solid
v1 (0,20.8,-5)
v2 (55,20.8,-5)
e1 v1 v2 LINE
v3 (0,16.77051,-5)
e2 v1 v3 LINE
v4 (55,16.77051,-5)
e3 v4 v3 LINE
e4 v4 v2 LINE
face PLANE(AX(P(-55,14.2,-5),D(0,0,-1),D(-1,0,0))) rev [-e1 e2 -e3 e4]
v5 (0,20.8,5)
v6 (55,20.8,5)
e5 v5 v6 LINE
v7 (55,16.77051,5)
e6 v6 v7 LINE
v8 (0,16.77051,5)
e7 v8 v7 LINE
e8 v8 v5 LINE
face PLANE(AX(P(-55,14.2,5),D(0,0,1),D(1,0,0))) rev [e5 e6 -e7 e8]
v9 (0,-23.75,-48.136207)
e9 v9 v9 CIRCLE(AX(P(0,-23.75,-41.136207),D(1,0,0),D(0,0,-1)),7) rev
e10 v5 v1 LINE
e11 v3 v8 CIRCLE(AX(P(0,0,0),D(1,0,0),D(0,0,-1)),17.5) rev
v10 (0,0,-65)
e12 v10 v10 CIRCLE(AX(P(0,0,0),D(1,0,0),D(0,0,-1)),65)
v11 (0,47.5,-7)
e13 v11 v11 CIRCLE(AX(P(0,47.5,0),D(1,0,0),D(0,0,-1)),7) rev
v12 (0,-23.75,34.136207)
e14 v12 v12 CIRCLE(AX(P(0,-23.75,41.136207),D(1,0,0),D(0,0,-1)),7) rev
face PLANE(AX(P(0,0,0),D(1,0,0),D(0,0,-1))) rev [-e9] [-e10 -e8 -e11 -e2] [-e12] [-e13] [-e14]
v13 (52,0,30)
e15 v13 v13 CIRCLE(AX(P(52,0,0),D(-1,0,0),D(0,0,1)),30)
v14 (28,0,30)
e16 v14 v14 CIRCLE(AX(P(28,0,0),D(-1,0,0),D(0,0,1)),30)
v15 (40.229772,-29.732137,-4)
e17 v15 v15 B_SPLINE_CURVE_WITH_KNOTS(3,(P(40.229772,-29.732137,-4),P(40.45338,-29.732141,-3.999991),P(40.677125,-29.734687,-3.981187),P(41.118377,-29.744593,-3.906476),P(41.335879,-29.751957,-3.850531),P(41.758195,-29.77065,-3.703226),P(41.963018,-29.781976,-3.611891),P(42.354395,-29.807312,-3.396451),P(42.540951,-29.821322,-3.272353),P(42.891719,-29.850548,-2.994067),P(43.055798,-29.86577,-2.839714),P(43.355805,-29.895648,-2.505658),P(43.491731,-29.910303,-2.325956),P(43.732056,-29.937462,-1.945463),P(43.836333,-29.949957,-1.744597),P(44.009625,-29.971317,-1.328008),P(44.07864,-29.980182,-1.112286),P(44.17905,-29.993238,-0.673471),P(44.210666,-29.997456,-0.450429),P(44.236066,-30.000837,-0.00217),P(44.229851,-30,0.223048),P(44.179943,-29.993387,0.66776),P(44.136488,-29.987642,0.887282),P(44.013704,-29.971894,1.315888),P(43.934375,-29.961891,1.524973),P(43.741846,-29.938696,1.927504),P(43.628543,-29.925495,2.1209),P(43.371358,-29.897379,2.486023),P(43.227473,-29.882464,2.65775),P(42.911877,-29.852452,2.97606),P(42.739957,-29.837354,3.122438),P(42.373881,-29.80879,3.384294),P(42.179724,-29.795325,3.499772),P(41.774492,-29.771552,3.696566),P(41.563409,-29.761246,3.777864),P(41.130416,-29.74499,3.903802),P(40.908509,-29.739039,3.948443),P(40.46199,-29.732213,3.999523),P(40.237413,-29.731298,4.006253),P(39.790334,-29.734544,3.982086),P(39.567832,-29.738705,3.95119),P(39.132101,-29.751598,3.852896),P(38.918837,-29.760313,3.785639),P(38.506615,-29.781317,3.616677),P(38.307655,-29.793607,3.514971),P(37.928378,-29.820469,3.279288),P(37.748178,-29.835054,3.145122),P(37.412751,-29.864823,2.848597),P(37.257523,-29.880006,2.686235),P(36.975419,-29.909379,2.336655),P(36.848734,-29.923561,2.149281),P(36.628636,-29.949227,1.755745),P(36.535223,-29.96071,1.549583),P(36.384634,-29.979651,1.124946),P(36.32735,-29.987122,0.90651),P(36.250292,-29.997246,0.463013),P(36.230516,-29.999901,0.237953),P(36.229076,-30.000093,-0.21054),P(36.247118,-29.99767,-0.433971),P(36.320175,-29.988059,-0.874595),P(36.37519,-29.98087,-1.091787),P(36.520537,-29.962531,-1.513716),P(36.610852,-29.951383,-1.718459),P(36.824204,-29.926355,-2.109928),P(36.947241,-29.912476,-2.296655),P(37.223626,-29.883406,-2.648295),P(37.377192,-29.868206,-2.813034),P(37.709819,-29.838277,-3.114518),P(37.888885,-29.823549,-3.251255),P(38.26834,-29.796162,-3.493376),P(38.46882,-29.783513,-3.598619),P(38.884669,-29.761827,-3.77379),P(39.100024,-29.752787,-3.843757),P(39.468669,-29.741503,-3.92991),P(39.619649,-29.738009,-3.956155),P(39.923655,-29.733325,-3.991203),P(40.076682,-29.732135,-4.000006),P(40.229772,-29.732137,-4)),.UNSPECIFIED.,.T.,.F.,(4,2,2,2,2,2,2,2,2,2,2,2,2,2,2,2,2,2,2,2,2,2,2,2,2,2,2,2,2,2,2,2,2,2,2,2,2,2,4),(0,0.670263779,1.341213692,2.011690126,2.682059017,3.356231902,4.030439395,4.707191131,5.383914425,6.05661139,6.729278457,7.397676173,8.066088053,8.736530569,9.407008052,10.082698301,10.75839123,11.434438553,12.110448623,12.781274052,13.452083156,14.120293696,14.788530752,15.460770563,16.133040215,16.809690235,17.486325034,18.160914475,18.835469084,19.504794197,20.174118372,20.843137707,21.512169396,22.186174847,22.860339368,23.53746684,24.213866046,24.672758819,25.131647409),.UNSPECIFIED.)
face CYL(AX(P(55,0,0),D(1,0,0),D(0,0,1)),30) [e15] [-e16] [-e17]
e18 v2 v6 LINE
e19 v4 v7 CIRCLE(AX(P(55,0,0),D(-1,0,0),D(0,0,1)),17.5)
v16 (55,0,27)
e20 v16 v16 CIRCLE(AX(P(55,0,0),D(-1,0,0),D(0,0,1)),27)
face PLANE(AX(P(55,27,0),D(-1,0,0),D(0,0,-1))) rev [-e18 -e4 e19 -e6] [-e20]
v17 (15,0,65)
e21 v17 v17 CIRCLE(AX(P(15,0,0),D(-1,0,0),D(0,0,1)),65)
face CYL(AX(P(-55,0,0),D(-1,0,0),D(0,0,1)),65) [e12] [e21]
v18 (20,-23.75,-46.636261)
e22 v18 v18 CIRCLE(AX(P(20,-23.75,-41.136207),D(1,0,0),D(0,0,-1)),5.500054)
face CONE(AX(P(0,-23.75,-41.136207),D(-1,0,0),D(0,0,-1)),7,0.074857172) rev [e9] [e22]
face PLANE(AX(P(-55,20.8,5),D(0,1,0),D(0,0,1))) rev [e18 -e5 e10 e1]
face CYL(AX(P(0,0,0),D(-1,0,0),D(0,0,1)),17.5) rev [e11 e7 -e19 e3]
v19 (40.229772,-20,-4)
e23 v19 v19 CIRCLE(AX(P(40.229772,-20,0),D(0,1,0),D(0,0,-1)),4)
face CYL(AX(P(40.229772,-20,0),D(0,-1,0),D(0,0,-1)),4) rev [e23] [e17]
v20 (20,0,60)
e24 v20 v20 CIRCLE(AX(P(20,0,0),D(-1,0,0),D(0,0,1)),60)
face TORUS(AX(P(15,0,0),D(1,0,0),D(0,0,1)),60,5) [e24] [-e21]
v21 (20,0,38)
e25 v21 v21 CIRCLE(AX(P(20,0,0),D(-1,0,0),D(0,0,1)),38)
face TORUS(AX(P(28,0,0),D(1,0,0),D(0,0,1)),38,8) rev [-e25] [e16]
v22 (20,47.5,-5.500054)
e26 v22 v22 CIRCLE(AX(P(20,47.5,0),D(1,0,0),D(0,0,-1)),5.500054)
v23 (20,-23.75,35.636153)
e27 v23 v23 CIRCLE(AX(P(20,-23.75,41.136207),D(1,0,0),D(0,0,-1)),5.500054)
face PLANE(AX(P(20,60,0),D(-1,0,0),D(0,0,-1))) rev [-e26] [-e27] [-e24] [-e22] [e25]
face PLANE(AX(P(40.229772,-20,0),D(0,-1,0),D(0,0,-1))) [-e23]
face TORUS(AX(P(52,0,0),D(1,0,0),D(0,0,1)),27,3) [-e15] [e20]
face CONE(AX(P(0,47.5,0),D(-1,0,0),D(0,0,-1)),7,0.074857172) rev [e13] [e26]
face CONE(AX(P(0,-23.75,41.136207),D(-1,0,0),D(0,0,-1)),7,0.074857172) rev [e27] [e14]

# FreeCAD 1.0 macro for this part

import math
import FreeCAD as App
import Part
import Sketcher

V = App.Vector
Q = App.Units.Quantity

doc = App.newDocument("Part")
body = doc.addObject("PartDesign::Body", "Body")

# Sketch on XY plane
sketch1 = body.newObject("Sketcher::SketchObject", "Sketch")
sketch1.AttachmentSupport = (doc.getObject("XY_Plane"), [""])
sketch1.MapMode = "FlatFace"
sketch1.addGeometry(Part.LineSegment(V(-55, 0, 0), V(0, 0, 0)), False)
sketch1.addGeometry(Part.LineSegment(V(0, 0, 0), V(0, 65, 0)), False)
sketch1.addGeometry(Part.LineSegment(V(0, 65, 0), V(-15, 65, 0)), False)
sketch1.addGeometry(Part.ArcOfCircle(Part.Circle(V(-15, 60, 0), V(0, 0, 1), 5), math.radians(90), math.radians(180)), False)
sketch1.addGeometry(Part.LineSegment(V(-20, 60, 0), V(-20, 38, 0)), False)
sketch1.addGeometry(Part.ArcOfCircle(Part.Circle(V(-28, 38, 0), V(0, 0, 1), 8), math.radians(-90), math.radians(0)), False)
sketch1.addGeometry(Part.LineSegment(V(-28, 30, 0), V(-52, 30, 0)), False)
sketch1.addGeometry(Part.ArcOfCircle(Part.Circle(V(-52, 27, 0), V(0, 0, 1), 3), math.radians(90), math.radians(180)), False)
sketch1.addGeometry(Part.LineSegment(V(-55, 27, 0), V(-55, 0, 0)), False)
sketch1.addConstraint(Sketcher.Constraint("Coincident", 0, 2, 1, 1))
sketch1.addConstraint(Sketcher.Constraint("Coincident", 1, 2, 2, 1))
sketch1.addConstraint(Sketcher.Constraint("Tangent", 2, 2, 3, 1))
sketch1.addConstraint(Sketcher.Constraint("Tangent", 3, 2, 4, 1))
sketch1.addConstraint(Sketcher.Constraint("Tangent", 4, 2, 5, 2))
sketch1.addConstraint(Sketcher.Constraint("Tangent", 5, 1, 6, 1))
sketch1.addConstraint(Sketcher.Constraint("Tangent", 6, 2, 7, 1))
sketch1.addConstraint(Sketcher.Constraint("Tangent", 7, 2, 8, 1))
sketch1.addConstraint(Sketcher.Constraint("Coincident", 8, 2, 0, 1))
sketch1.addConstraint(Sketcher.Constraint("Horizontal", 0))
sketch1.addConstraint(Sketcher.Constraint("Vertical", 1))
sketch1.addConstraint(Sketcher.Constraint("Horizontal", 2))
sketch1.addConstraint(Sketcher.Constraint("Vertical", 4))
sketch1.addConstraint(Sketcher.Constraint("Horizontal", 6))
sketch1.addConstraint(Sketcher.Constraint("Vertical", 8))
sketch1.addConstraint(Sketcher.Constraint("Coincident", 0, 2, -1, 1))
sketch1.addConstraint(Sketcher.Constraint("Radius", 3, Q("5 mm")))
sketch1.addConstraint(Sketcher.Constraint("Radius", 5, Q("8 mm")))
sketch1.addConstraint(Sketcher.Constraint("Radius", 7, Q("3 mm")))
sketch1.addConstraint(Sketcher.Constraint("DistanceX", 0, 1, 0, 2, Q("55 mm")))
sketch1.addConstraint(Sketcher.Constraint("DistanceX", 2, 2, 2, 1, Q("15 mm")))
sketch1.addConstraint(Sketcher.Constraint("DistanceY", 1, 1, 1, 2, Q("65 mm")))
sketch1.addConstraint(Sketcher.Constraint("DistanceY", 4, 2, 4, 1, Q("22 mm")))
revolution = body.newObject("PartDesign::Revolution", "Revolution")
revolution.Profile = sketch1
revolution.ReferenceAxis = (sketch1, ["H_Axis"])
revolution.Angle = 360

# Sketch on YZ plane
sketch2 = body.newObject("Sketcher::SketchObject", "Sketch001")
sketch2.AttachmentSupport = (doc.getObject("YZ_Plane"), [""])
sketch2.MapMode = "FlatFace"
sketch2.AttachmentOffset = App.Placement(V(0, 0, -55), App.Rotation())
sketch2.addGeometry(Part.Circle(V(0, 0, 0), V(0, 0, 1), 18), False)
sketch2.addConstraint(Sketcher.Constraint("Coincident", 0, 3, -1, 1))
sketch2.addConstraint(Sketcher.Constraint("Diameter", 0, Q("35 mm")))
pocket1 = body.newObject("PartDesign::Pocket", "Pocket")
pocket1.Profile = sketch2
pocket1.Type = "ThroughAll"
pocket1.Reversed = True

# Sketch on YZ plane
sketch3 = body.newObject("Sketcher::SketchObject", "Sketch002")
sketch3.AttachmentSupport = (doc.getObject("YZ_Plane"), [""])
sketch3.MapMode = "FlatFace"
sketch3.addGeometry(Part.LineSegment(V(21, 5, 0), V(14, 5, 0)), False)
sketch3.addGeometry(Part.LineSegment(V(14, 5, 0), V(14, -5, 0)), False)
sketch3.addGeometry(Part.LineSegment(V(14, -5, 0), V(21, -5, 0)), False)
sketch3.addGeometry(Part.LineSegment(V(21, -5, 0), V(21, 5, 0)), False)
sketch3.addConstraint(Sketcher.Constraint("Coincident", 0, 2, 1, 1))
sketch3.addConstraint(Sketcher.Constraint("Coincident", 1, 2, 2, 1))
sketch3.addConstraint(Sketcher.Constraint("Coincident", 2, 2, 3, 1))
sketch3.addConstraint(Sketcher.Constraint("Coincident", 3, 2, 0, 1))
sketch3.addConstraint(Sketcher.Constraint("Horizontal", 0))
sketch3.addConstraint(Sketcher.Constraint("Vertical", 1))
sketch3.addConstraint(Sketcher.Constraint("Horizontal", 2))
sketch3.addConstraint(Sketcher.Constraint("Vertical", 3))
sketch3.addConstraint(Sketcher.Constraint("DistanceY", 1, 2, 1, 1, Q("10 mm")))
sketch3.addConstraint(Sketcher.Constraint("DistanceX", 0, 2, 0, 1, Q("6.6 mm")))
sketch3.addConstraint(Sketcher.Constraint("DistanceY", -1, 1, 0, 2, Q("5 mm")))
sketch3.addConstraint(Sketcher.Constraint("DistanceX", -1, 1, 0, 2, Q("14.2 mm")))
pocket2 = body.newObject("PartDesign::Pocket", "Pocket001")
pocket2.Profile = sketch3
pocket2.Type = "ThroughAll"

# Sketch on XZ plane
sketch4 = body.newObject("Sketcher::SketchObject", "Sketch003")
sketch4.AttachmentSupport = (doc.getObject("XZ_Plane"), [""])
sketch4.MapMode = "FlatFace"
sketch4.AttachmentOffset = App.Placement(V(0, 0, 30), App.Rotation())
sketch4.addGeometry(Part.Circle(V(-40.2, 0, 0), V(0, 0, 1), 4), False)
sketch4.addConstraint(Sketcher.Constraint("PointOnObject", 0, 3, -1))
sketch4.addConstraint(Sketcher.Constraint("Diameter", 0, Q("8 mm")))
sketch4.addConstraint(Sketcher.Constraint("DistanceX", 0, 3, -1, 1, Q("40.229772 mm")))
pocket3 = body.newObject("PartDesign::Pocket", "Pocket002")
pocket3.Profile = sketch4
pocket3.Length = 10

# Sketch on XZ plane
sketch5 = body.newObject("Sketcher::SketchObject", "Sketch004")
sketch5.AttachmentSupport = (doc.getObject("XZ_Plane"), [""])
sketch5.MapMode = "FlatFace"
sketch5.AttachmentOffset = App.Placement(V(0, 0, -47.5), App.Rotation())
sketch5.addGeometry(Part.LineSegment(V(0, 0, 0), V(0, -7, 0)), False)
sketch5.addGeometry(Part.LineSegment(V(0, -7, 0), V(-93, 0, 0)), False)
sketch5.addGeometry(Part.LineSegment(V(-93, 0, 0), V(0, 0, 0)), False)
sketch5.addConstraint(Sketcher.Constraint("Coincident", 0, 2, 1, 1))
sketch5.addConstraint(Sketcher.Constraint("Coincident", 1, 2, 2, 1))
sketch5.addConstraint(Sketcher.Constraint("Coincident", 2, 2, 0, 1))
sketch5.addConstraint(Sketcher.Constraint("Vertical", 0))
sketch5.addConstraint(Sketcher.Constraint("Horizontal", 2))
sketch5.addConstraint(Sketcher.Constraint("Coincident", 2, 2, -1, 1))
sketch5.addConstraint(Sketcher.Constraint("DistanceY", 0, 2, 0, 1, Q("7 mm")))
sketch5.addConstraint(Sketcher.Constraint("DistanceX", 2, 1, 2, 2, Q("93.336682 mm")))
groove = body.newObject("PartDesign::Groove", "Groove")
groove.Profile = sketch5
groove.ReferenceAxis = (sketch5, ["H_Axis"])
groove.Angle = 360

# Sketch on XZ plane
sketch6 = body.newObject("Sketcher::SketchObject", "Sketch005")
sketch6.AttachmentSupport = (doc.getObject("XZ_Plane"), [""])
sketch6.MapMode = "FlatFace"
sketch6.AttachmentOffset = App.Placement(V(0, 0, 23.75), App.Rotation())
sketch6.addGeometry(Part.LineSegment(V(0, -41, 0), V(0, -48, 0)), False)
sketch6.addGeometry(Part.LineSegment(V(0, -48, 0), V(-93, -41, 0)), False)
sketch6.addGeometry(Part.LineSegment(V(-93, -41, 0), V(0, -41, 0)), False)
sketch6.addGeometry(Part.LineSegment(V(0, -41, 0), V(-93, -41, 0)), True)  # axis
sketch6.addConstraint(Sketcher.Constraint("Coincident", 0, 2, 1, 1))
sketch6.addConstraint(Sketcher.Constraint("Coincident", 1, 2, 2, 1))
sketch6.addConstraint(Sketcher.Constraint("Coincident", 2, 2, 0, 1))
sketch6.addConstraint(Sketcher.Constraint("Vertical", 0))
sketch6.addConstraint(Sketcher.Constraint("Horizontal", 2))
sketch6.addConstraint(Sketcher.Constraint("Horizontal", 3))
sketch6.addConstraint(Sketcher.Constraint("Coincident", 3, 1, 2, 2))
sketch6.addConstraint(Sketcher.Constraint("PointOnObject", 0, 2, -2))
sketch6.addConstraint(Sketcher.Constraint("Equal", 2, 3))
sketch6.addConstraint(Sketcher.Constraint("DistanceY", 0, 2, 0, 1, Q("7 mm")))
sketch6.addConstraint(Sketcher.Constraint("DistanceX", 2, 1, 2, 2, Q("93.336682 mm")))
sketch6.addConstraint(Sketcher.Constraint("DistanceY", 0, 2, -1, 1, Q("48.136207 mm")))
groove2 = body.newObject("PartDesign::Groove", "Groove001")
groove2.Profile = sketch6
groove2.ReferenceAxis = (sketch6, ["Axis0"])
groove2.Angle = 360

# Sketch on XZ plane
sketch7 = body.newObject("Sketcher::SketchObject", "Sketch006")
sketch7.AttachmentSupport = (doc.getObject("XZ_Plane"), [""])
sketch7.MapMode = "FlatFace"
sketch7.AttachmentOffset = App.Placement(V(0, 0, 23.75), App.Rotation())
sketch7.addGeometry(Part.LineSegment(V(0, 41, 0), V(0, 34, 0)), False)
sketch7.addGeometry(Part.LineSegment(V(0, 34, 0), V(-93, 41, 0)), False)
sketch7.addGeometry(Part.LineSegment(V(-93, 41, 0), V(0, 41, 0)), False)
sketch7.addGeometry(Part.LineSegment(V(0, 41, 0), V(-93, 41, 0)), True)  # axis
sketch7.addConstraint(Sketcher.Constraint("Coincident", 0, 2, 1, 1))
sketch7.addConstraint(Sketcher.Constraint("Coincident", 1, 2, 2, 1))
sketch7.addConstraint(Sketcher.Constraint("Coincident", 2, 2, 0, 1))
sketch7.addConstraint(Sketcher.Constraint("Vertical", 0))
sketch7.addConstraint(Sketcher.Constraint("Horizontal", 2))
sketch7.addConstraint(Sketcher.Constraint("Horizontal", 3))
sketch7.addConstraint(Sketcher.Constraint("Coincident", 3, 1, 2, 2))
sketch7.addConstraint(Sketcher.Constraint("PointOnObject", 0, 2, -2))
sketch7.addConstraint(Sketcher.Constraint("Equal", 2, 3))
sketch7.addConstraint(Sketcher.Constraint("DistanceY", 0, 2, 0, 1, Q("7 mm")))
sketch7.addConstraint(Sketcher.Constraint("DistanceX", 2, 1, 2, 2, Q("93.336682 mm")))
sketch7.addConstraint(Sketcher.Constraint("DistanceY", -1, 1, 0, 2, Q("34.136207 mm")))
groove3 = body.newObject("PartDesign::Groove", "Groove002")
groove3.Profile = sketch7
groove3.ReferenceAxis = (sketch7, ["Axis0"])
groove3.Angle = 360
body2 = doc.addObject("PartDesign::Body", "Body001")
doc.recompute()

body2.BaseFeature = body
doc.recompute()

mirroring = doc.addObject("Part::Mirroring", "Mirroring")
mirroring.Source = body
mirroring.Base = V(0, 0, 0)
mirroring.Normal = V(-1, 0, 0)
body3 = doc.addObject("PartDesign::Body", "Body002")
body3.BaseFeature = mirroring
boolean = body2.newObject("PartDesign::Boolean", "Boolean")
boolean.Type = "Fuse"
boolean.addObjects([body3])
doc.recompute()

# Sketch on YZ plane
sketch8 = body2.newObject("Sketcher::SketchObject", "Sketch007")
sketch8.AttachmentSupport = (doc.getObject("YZ_Plane001"), [""])
sketch8.MapMode = "FlatFace"
sketch8.addGeometry(Part.Circle(V(0, 0, 0), V(0, 0, 1), 82), False)
sketch8.addConstraint(Sketcher.Constraint("Coincident", 0, 3, -1, 1))
sketch8.addConstraint(Sketcher.Constraint("Diameter", 0, Q("163.100058 mm")))
pocket4 = body2.newObject("PartDesign::Pocket", "Pocket003")
pocket4.Profile = sketch8
pocket4.Length = 60
mirroring.Visibility = False

doc.recompute()
